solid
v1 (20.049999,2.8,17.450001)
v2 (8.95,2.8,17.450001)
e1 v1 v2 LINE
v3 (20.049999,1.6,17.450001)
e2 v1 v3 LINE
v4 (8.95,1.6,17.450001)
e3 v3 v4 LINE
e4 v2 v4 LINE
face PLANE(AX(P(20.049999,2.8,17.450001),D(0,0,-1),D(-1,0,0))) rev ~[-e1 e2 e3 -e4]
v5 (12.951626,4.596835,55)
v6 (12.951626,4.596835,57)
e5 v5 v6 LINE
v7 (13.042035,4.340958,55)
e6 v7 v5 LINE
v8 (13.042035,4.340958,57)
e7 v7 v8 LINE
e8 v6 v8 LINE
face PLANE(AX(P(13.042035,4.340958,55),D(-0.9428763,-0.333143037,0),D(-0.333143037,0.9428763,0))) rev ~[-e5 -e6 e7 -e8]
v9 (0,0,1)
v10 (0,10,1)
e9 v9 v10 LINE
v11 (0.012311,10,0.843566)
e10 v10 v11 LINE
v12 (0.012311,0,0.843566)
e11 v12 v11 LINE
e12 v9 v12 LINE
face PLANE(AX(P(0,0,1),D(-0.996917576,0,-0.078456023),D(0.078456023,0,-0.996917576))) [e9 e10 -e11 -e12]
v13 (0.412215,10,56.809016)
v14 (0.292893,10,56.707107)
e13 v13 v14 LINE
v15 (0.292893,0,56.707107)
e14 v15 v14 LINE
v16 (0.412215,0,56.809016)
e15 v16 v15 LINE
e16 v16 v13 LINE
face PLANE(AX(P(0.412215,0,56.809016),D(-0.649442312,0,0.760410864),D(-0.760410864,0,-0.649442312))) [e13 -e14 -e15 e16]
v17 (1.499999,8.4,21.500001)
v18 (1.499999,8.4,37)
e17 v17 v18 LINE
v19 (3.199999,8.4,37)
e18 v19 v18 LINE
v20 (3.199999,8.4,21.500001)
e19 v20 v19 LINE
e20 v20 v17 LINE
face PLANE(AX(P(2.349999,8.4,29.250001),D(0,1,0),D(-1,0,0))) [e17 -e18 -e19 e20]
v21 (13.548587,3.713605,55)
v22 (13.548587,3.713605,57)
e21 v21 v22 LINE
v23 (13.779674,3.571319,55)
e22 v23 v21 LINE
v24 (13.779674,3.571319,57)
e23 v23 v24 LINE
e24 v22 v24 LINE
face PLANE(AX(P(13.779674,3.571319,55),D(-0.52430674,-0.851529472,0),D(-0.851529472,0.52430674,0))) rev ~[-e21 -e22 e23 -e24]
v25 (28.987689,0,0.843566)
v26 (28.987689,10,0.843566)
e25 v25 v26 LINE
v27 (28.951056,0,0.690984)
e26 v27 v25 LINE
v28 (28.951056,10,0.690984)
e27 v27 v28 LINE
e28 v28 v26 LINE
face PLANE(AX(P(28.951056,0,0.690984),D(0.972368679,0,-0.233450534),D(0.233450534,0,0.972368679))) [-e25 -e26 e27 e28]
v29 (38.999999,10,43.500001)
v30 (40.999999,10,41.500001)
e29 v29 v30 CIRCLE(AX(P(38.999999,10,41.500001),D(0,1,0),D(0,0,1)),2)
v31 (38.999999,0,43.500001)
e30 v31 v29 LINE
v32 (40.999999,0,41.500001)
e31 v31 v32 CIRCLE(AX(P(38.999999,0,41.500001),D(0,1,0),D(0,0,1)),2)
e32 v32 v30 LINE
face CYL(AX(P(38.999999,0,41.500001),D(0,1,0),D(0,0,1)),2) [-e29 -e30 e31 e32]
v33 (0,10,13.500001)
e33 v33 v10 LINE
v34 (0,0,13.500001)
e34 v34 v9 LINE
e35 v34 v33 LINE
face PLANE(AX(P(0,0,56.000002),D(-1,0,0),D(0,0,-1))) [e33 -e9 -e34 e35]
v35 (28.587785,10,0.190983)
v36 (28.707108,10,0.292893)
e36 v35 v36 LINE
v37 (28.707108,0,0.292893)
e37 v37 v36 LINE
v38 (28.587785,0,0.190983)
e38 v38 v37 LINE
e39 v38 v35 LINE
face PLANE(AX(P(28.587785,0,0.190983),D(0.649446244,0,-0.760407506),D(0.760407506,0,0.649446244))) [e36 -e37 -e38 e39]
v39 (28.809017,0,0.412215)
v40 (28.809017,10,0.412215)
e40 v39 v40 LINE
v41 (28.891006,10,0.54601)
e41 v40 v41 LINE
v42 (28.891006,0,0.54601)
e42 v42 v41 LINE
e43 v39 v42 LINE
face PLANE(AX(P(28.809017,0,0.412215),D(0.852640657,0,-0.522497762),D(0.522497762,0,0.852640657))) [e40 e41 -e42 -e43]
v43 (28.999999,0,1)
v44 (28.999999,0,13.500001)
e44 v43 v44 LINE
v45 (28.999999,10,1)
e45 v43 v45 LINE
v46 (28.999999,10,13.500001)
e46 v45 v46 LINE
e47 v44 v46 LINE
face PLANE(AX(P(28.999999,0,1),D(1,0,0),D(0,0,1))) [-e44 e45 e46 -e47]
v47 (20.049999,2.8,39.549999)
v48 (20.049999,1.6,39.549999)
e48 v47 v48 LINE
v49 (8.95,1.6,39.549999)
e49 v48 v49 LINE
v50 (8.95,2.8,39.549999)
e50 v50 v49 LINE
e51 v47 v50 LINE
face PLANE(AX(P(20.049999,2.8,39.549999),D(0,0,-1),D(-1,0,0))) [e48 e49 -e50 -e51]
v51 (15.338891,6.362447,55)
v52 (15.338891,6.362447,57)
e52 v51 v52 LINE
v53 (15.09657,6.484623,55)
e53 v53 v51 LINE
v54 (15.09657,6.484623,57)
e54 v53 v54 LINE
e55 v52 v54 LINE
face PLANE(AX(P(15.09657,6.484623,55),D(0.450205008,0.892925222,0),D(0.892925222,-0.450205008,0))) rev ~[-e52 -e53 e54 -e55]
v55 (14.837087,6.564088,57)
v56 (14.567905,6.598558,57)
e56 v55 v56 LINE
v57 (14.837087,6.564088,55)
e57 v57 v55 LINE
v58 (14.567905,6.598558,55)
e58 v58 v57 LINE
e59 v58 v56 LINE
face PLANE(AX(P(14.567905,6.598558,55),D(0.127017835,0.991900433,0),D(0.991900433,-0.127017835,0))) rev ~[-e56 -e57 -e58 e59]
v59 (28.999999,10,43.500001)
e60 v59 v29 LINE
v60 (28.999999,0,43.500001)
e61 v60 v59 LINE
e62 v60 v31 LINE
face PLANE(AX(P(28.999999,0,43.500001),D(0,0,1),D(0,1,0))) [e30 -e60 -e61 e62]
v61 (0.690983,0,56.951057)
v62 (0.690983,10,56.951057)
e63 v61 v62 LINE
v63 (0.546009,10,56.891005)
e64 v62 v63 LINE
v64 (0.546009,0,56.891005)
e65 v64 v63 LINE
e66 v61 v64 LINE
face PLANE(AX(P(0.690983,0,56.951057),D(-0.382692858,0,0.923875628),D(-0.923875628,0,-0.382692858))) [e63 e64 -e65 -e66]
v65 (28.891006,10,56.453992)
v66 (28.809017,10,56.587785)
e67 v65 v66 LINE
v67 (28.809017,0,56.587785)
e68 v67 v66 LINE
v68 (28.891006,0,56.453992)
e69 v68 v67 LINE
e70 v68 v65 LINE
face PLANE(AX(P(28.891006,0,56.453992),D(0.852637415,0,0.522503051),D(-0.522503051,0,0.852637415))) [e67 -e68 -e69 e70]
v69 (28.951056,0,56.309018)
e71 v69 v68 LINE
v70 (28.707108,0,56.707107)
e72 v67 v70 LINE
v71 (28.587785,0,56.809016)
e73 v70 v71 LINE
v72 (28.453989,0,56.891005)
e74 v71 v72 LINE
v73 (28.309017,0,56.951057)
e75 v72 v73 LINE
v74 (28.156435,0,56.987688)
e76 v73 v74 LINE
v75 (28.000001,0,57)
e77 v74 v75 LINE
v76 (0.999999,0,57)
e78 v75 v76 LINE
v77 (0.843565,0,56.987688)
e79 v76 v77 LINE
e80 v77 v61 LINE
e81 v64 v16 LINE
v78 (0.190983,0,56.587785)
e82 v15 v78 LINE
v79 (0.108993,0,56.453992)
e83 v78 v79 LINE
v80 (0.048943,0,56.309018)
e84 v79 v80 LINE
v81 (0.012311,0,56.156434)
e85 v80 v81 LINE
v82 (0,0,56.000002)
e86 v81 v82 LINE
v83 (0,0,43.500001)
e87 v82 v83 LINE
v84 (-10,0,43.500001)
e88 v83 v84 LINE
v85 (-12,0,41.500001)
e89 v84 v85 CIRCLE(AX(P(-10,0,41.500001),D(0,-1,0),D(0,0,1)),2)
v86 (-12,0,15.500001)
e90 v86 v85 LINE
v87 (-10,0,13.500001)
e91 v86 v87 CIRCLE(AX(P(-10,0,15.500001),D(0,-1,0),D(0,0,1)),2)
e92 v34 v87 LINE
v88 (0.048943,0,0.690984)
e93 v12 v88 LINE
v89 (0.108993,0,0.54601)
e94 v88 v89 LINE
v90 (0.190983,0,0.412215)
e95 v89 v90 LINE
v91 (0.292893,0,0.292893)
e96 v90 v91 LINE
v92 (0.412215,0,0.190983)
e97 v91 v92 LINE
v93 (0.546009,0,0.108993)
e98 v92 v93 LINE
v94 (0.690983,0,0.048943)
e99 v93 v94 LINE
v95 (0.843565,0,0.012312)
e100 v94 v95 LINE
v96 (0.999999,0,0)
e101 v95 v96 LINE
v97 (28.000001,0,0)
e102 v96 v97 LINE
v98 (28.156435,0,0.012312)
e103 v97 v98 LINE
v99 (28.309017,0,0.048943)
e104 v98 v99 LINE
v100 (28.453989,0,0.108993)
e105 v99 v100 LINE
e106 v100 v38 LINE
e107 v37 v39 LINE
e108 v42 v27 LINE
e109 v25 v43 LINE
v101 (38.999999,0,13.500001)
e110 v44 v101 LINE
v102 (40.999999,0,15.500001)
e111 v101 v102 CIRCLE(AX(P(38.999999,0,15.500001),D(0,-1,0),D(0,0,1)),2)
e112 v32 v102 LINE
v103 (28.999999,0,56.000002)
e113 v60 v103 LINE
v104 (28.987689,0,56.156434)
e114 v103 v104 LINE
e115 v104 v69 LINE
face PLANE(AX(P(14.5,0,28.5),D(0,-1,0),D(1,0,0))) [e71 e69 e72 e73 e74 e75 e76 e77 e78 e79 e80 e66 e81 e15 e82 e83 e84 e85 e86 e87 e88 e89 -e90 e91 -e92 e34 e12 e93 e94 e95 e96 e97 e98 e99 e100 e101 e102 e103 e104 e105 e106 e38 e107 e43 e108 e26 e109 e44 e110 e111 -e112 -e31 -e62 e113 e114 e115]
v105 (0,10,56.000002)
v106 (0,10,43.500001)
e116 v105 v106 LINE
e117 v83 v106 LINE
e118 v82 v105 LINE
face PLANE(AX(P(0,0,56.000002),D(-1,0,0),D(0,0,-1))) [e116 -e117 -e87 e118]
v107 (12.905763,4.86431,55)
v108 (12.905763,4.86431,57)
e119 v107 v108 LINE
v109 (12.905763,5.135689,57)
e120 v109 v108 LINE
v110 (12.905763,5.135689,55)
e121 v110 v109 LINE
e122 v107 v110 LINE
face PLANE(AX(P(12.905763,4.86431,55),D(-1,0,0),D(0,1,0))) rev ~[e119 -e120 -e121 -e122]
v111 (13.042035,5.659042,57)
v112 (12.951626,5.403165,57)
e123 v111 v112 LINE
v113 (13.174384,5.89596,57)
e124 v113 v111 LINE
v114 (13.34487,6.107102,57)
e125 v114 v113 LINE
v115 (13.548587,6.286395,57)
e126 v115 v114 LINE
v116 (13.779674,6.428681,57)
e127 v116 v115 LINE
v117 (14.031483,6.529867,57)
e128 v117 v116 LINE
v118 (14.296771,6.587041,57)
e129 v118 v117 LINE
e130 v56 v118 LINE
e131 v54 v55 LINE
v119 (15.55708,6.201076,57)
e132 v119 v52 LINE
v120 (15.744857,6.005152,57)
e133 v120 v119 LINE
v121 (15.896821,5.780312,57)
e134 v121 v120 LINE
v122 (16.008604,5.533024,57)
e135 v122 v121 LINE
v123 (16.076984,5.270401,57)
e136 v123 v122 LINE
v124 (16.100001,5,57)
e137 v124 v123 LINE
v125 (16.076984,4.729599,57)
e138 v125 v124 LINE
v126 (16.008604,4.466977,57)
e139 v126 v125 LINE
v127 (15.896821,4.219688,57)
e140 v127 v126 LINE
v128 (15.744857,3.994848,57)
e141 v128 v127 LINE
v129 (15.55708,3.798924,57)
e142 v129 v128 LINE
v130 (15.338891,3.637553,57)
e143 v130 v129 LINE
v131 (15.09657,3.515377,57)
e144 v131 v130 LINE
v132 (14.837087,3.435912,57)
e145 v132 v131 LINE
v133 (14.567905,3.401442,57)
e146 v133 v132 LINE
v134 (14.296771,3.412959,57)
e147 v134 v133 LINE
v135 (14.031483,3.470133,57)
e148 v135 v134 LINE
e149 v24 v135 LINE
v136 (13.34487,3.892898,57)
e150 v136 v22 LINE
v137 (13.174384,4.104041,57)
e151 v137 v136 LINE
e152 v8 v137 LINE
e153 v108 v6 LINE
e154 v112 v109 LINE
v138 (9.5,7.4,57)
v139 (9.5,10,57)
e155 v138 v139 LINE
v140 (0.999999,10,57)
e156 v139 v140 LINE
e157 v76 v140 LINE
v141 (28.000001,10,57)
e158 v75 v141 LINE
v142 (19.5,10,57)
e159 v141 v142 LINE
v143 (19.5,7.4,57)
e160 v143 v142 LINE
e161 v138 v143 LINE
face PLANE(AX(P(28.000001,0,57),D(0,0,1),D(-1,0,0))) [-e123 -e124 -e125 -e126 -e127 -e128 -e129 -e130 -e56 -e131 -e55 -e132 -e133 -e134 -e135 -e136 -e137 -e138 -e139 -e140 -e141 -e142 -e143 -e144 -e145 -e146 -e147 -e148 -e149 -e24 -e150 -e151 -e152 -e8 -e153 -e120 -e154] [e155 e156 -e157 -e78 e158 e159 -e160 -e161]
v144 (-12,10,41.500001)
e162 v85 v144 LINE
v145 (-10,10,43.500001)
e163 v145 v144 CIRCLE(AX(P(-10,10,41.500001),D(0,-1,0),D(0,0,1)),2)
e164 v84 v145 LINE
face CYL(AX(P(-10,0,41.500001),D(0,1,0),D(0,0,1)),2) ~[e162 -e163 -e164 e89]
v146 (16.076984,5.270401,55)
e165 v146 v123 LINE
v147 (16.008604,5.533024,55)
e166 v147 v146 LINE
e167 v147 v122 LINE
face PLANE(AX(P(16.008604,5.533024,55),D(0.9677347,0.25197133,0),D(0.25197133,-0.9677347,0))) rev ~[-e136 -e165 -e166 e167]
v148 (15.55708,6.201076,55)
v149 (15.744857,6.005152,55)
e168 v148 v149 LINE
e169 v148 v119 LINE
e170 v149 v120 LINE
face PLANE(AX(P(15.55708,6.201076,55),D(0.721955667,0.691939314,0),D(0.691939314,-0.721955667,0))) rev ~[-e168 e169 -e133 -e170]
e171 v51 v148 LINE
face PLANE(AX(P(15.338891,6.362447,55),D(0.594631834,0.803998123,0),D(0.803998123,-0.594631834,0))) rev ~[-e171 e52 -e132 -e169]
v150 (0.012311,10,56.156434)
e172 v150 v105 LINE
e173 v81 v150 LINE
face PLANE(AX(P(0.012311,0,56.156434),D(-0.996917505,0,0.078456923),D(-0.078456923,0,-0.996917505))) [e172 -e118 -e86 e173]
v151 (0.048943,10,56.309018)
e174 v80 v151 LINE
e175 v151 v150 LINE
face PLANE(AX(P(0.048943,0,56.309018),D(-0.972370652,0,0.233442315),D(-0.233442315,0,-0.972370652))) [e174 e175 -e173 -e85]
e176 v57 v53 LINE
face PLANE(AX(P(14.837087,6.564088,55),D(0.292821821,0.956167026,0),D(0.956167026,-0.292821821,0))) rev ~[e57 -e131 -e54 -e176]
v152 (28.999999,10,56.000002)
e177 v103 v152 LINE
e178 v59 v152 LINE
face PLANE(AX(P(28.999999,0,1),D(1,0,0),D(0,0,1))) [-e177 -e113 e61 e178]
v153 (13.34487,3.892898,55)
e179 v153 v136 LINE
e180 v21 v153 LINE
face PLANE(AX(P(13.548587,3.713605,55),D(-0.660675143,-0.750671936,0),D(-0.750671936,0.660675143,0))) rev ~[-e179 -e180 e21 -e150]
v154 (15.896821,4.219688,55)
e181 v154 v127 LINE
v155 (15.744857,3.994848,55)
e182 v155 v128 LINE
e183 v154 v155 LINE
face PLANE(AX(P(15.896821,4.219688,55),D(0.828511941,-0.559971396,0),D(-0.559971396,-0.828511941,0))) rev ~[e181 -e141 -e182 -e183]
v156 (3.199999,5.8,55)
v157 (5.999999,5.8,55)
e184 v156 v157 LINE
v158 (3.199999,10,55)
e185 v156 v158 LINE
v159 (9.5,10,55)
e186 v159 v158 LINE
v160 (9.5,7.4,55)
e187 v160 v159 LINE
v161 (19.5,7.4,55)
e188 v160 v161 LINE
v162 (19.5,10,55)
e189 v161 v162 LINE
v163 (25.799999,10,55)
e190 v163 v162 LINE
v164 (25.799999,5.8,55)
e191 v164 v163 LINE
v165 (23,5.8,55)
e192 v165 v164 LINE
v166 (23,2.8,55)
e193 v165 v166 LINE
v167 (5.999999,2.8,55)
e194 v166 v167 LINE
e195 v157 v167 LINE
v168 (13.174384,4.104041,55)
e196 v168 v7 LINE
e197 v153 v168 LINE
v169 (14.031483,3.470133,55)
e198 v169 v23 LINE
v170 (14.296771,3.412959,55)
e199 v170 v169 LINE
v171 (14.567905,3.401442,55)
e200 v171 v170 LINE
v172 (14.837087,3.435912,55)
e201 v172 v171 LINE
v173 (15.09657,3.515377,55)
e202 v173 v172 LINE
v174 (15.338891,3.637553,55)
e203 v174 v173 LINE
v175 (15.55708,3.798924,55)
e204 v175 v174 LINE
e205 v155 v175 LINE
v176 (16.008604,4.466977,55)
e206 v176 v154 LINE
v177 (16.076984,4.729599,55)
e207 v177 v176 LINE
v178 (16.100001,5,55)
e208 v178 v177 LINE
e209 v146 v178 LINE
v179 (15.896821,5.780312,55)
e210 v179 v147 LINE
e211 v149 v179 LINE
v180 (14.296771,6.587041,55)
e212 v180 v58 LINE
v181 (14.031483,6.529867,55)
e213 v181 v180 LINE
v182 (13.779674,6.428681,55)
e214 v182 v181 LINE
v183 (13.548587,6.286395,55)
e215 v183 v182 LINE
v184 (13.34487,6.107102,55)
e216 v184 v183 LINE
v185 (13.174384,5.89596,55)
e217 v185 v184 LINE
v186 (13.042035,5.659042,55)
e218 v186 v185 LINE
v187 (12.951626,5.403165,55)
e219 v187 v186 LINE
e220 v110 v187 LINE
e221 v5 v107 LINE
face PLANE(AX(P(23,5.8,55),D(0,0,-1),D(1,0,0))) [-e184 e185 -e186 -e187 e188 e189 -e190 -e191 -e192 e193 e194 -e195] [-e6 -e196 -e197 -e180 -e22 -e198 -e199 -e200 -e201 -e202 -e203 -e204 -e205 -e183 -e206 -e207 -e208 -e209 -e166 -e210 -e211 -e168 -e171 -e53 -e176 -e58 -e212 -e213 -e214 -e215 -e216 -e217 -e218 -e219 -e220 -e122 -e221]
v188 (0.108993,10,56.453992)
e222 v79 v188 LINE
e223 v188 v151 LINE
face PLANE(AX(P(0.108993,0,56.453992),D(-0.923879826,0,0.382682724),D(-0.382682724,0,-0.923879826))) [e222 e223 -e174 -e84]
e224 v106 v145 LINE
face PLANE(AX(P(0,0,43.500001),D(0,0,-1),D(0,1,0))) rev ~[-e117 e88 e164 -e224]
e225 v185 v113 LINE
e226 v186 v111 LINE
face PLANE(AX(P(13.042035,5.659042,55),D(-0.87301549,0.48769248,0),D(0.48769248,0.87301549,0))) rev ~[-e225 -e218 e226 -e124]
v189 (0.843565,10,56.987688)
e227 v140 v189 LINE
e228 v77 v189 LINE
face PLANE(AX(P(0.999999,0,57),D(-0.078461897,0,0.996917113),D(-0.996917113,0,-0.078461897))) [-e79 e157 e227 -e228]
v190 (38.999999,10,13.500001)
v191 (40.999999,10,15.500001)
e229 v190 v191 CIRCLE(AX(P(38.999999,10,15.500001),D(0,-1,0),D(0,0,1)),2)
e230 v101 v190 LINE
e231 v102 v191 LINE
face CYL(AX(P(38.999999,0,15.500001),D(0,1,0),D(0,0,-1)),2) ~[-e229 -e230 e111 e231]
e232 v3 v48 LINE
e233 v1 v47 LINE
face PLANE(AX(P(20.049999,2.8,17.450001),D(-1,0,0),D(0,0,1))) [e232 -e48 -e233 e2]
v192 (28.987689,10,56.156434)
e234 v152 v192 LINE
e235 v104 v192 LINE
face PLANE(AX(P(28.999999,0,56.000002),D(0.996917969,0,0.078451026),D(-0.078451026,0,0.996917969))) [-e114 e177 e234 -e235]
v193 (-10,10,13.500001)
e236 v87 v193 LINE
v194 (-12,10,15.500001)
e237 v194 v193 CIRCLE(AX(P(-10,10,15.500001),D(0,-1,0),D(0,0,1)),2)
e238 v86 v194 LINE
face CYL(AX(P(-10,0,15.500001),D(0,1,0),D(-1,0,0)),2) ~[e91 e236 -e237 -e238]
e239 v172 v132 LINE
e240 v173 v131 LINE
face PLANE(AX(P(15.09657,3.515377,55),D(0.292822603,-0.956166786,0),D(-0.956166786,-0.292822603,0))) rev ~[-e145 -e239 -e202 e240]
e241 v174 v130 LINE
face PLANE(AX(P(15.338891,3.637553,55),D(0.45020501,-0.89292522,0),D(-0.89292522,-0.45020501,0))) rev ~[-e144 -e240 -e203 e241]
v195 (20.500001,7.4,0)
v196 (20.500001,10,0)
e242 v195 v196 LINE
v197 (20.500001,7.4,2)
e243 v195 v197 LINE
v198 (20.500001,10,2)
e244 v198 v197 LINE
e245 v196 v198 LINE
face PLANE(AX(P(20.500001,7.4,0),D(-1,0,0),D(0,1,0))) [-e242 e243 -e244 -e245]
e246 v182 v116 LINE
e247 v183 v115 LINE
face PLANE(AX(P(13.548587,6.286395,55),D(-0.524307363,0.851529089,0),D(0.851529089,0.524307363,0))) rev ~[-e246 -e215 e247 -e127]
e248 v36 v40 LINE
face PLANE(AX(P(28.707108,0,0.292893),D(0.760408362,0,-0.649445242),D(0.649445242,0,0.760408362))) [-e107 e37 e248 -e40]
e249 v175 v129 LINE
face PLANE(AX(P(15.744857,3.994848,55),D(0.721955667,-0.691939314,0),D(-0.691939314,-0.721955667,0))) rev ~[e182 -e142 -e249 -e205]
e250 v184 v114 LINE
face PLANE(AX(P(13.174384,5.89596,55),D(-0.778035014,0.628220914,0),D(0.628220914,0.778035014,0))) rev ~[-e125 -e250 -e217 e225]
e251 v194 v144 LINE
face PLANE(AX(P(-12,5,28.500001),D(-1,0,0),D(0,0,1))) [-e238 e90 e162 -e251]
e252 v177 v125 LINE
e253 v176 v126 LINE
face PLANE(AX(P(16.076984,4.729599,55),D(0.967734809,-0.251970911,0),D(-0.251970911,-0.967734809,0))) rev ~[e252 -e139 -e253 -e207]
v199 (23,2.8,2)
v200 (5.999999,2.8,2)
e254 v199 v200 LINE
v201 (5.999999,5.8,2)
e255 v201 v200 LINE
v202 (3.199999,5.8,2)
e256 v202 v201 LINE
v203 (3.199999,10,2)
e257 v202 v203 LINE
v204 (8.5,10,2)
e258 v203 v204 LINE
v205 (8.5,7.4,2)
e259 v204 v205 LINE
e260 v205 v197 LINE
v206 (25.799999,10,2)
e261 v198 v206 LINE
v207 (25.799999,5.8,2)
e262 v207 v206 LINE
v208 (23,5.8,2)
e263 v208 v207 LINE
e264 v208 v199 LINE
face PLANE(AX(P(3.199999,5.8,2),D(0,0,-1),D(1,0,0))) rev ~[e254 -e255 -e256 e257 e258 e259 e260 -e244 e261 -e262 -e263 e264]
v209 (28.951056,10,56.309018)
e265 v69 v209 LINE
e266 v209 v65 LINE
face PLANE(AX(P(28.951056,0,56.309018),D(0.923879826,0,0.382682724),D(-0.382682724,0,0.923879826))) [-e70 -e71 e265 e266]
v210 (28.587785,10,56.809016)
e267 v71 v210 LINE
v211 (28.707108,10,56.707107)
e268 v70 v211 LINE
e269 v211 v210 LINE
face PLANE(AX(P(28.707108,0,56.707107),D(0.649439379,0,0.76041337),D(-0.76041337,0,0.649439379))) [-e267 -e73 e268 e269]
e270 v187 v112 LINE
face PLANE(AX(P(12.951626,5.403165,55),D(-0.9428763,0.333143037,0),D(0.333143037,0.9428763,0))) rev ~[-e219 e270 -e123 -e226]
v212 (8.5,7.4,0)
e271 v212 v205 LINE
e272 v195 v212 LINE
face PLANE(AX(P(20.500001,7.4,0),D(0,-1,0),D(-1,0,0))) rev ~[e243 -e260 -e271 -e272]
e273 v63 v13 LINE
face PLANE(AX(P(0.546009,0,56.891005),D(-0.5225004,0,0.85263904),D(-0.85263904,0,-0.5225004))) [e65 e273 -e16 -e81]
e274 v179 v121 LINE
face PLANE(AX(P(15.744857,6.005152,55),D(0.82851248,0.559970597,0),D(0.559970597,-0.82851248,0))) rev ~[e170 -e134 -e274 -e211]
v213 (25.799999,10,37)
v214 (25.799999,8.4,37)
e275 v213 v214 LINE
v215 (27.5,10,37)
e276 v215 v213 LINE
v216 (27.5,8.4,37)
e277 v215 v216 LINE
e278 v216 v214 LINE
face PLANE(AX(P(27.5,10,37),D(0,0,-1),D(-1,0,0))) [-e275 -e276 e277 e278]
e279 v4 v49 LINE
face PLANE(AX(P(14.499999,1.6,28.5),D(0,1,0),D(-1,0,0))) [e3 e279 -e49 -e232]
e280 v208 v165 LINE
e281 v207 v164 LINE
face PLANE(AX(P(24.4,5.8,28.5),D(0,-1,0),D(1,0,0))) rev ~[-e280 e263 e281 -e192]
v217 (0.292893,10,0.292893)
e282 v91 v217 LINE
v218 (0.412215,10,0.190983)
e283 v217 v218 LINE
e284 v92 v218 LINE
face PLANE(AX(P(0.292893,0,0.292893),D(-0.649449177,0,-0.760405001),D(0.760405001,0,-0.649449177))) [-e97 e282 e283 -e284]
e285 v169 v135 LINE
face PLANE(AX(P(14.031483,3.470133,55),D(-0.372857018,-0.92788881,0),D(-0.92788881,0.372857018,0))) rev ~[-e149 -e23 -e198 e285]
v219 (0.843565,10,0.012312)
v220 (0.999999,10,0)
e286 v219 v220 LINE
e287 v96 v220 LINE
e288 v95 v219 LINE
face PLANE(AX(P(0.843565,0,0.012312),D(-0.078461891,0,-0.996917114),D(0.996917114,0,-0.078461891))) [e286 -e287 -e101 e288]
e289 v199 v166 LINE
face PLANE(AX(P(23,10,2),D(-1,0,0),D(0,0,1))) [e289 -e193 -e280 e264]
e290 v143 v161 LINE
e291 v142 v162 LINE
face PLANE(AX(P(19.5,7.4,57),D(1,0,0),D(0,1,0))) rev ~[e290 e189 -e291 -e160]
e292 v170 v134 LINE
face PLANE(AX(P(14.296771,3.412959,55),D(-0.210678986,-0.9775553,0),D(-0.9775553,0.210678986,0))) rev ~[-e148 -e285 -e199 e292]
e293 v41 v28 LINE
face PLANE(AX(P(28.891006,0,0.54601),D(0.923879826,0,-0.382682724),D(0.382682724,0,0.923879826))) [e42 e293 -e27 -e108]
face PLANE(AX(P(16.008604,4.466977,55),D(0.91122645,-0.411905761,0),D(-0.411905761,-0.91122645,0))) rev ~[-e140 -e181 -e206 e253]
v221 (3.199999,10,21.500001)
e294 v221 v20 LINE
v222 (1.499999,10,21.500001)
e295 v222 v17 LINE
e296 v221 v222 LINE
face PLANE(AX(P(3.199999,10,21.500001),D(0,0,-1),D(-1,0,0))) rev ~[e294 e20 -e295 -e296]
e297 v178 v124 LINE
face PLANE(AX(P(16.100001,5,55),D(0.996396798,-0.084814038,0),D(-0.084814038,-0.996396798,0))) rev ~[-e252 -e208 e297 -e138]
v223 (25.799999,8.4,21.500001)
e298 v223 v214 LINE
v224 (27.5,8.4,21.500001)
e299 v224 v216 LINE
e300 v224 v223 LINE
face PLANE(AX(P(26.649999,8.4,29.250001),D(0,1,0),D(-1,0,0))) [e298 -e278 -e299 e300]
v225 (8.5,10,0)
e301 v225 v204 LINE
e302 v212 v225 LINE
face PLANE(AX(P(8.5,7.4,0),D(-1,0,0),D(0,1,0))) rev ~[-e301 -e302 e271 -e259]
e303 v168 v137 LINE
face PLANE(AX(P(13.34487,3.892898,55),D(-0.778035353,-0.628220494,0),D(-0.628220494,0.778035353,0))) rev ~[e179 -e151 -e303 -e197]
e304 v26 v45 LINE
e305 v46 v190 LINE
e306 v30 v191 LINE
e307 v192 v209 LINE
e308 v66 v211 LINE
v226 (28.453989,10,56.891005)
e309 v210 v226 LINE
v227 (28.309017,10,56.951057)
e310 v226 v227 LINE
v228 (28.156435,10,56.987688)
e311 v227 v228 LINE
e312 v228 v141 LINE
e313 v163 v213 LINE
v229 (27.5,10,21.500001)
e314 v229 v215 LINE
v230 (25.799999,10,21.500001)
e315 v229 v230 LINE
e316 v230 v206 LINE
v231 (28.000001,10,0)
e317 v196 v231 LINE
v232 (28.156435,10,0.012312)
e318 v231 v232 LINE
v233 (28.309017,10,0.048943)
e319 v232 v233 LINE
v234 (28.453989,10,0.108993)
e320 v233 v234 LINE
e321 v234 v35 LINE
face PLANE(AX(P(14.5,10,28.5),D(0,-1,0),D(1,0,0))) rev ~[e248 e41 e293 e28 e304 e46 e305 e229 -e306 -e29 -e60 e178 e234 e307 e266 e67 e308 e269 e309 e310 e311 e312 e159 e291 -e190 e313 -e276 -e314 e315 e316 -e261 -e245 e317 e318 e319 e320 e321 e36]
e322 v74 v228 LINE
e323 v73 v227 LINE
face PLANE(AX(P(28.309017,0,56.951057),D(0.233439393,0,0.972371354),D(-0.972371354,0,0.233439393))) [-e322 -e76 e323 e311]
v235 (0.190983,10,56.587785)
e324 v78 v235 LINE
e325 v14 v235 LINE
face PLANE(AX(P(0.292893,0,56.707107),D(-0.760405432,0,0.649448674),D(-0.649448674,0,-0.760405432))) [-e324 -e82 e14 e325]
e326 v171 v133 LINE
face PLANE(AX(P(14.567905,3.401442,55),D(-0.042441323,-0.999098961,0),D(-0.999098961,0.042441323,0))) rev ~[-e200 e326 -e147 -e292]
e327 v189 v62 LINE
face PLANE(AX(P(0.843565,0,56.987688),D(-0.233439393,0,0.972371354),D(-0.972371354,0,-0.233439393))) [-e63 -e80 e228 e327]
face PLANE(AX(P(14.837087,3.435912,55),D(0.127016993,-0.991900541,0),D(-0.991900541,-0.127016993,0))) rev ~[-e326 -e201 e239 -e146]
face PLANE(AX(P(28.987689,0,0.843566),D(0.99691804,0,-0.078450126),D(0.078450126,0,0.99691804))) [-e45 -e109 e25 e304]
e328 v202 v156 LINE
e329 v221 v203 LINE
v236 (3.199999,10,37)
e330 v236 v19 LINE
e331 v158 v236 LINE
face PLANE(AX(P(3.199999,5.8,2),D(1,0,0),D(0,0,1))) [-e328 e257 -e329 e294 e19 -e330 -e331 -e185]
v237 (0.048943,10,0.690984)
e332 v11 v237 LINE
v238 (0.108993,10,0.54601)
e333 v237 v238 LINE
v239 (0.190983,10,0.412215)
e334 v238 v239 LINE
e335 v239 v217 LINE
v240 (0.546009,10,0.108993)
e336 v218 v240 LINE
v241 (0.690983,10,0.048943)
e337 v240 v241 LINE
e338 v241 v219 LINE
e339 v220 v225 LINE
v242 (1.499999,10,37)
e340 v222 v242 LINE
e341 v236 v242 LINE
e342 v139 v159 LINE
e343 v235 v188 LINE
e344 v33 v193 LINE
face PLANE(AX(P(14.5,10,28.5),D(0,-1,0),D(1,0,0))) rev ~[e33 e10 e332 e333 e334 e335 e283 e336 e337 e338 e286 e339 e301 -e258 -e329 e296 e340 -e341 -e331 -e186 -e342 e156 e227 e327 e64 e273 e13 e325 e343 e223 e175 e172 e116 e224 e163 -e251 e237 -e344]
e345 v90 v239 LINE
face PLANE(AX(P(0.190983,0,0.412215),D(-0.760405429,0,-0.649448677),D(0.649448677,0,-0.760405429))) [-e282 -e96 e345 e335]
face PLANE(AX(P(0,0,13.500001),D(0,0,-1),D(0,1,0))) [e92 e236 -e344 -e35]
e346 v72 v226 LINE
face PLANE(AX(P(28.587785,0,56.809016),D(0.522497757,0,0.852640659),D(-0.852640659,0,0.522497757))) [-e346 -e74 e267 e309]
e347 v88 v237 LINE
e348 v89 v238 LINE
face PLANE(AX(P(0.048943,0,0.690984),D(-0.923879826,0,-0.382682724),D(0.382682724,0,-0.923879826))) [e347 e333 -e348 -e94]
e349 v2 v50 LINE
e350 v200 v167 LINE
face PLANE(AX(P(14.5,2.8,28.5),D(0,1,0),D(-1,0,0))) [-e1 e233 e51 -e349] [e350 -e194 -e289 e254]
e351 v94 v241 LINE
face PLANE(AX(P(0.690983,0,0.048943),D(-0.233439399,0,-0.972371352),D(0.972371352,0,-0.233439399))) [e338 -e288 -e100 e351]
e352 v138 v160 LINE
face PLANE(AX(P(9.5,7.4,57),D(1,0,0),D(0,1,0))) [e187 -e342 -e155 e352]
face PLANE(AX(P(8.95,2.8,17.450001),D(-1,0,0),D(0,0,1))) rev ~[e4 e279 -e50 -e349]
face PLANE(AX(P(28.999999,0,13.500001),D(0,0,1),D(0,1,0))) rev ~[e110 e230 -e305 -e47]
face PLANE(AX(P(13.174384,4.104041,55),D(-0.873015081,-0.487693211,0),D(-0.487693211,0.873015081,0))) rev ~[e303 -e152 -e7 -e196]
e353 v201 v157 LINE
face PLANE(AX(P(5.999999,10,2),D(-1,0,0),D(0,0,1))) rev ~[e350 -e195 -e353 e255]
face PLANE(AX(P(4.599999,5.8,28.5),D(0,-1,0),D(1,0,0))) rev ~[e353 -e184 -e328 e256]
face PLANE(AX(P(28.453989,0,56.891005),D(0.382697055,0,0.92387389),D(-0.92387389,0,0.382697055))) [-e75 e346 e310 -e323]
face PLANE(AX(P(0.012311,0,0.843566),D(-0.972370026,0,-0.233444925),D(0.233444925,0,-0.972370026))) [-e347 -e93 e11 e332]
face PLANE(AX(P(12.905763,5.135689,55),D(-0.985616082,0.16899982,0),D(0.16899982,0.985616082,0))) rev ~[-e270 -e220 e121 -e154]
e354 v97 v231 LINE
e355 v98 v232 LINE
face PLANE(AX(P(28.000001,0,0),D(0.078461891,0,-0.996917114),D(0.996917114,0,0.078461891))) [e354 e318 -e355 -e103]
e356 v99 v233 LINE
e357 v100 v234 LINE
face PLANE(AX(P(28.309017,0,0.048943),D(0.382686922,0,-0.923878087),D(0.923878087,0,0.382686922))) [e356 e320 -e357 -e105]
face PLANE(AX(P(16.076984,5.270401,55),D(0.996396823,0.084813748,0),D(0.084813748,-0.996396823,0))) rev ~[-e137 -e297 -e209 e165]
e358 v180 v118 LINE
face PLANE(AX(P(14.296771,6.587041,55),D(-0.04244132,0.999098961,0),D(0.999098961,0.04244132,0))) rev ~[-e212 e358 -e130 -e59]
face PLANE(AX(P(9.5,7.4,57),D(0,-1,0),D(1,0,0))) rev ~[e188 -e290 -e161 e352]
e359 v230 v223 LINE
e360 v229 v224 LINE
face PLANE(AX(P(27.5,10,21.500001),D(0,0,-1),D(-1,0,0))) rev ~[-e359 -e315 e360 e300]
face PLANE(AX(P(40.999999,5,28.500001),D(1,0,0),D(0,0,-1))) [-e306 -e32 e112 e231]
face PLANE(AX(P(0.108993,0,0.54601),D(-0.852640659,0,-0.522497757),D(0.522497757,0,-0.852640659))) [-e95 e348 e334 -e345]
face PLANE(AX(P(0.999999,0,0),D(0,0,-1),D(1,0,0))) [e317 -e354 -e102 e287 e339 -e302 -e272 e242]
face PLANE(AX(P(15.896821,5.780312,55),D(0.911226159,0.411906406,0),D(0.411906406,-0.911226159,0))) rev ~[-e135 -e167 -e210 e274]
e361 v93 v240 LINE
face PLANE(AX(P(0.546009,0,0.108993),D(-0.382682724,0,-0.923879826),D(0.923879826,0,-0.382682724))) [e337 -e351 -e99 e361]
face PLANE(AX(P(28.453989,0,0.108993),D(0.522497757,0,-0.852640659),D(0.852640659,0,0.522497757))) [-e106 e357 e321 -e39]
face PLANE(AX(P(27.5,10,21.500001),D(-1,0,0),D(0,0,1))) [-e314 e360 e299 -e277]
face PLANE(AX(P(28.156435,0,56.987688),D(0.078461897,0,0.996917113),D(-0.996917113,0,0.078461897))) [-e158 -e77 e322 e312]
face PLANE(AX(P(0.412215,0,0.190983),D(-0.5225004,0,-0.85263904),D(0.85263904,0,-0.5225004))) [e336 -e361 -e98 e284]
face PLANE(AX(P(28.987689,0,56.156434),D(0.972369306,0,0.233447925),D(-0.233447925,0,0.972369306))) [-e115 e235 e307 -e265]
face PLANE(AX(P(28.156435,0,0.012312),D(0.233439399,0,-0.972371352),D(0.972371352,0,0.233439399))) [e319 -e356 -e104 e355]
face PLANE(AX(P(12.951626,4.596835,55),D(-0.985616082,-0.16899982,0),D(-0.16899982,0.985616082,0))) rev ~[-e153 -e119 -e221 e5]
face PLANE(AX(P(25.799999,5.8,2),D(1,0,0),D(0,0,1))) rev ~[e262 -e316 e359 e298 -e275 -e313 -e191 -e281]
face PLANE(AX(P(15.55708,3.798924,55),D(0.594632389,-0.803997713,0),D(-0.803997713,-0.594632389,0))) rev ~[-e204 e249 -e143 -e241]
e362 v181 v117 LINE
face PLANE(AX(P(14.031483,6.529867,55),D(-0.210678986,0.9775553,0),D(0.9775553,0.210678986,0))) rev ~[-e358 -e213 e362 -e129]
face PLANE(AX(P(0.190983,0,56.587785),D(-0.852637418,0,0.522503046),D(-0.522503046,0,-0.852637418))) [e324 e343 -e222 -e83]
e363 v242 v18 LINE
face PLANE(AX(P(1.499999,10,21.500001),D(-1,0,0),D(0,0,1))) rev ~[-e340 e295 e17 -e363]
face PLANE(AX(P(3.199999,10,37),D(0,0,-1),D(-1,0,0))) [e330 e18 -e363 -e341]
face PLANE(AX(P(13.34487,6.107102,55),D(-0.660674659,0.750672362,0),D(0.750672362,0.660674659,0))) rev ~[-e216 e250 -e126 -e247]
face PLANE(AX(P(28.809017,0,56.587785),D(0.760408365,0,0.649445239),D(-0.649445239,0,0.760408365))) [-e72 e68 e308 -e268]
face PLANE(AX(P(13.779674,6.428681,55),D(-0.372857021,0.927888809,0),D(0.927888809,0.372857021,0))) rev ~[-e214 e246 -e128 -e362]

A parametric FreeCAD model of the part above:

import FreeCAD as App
import Part
import Sketcher
Q = App.Units.Quantity


def edges_at(feature, points):
    """Names of the edges that pass closest to the given points."""
    edges = feature.Shape.Edges
    near = lambda p: min(range(len(edges)), key=lambda i: edges[i].distToShape(Part.Vertex(*p))[0])
    return sorted({f"Edge{near(p) + 1}" for p in points})


def add_polygon(sketch, points):
    """Adds a closed chain of lines whose ends are joined by coincident constraints."""
    first, n = sketch.GeometryCount, len(points)
    for a, b in zip(points, points[1:] + points[:1]):
        sketch.addGeometry(Part.LineSegment(App.Vector(*a, 0), App.Vector(*b, 0)), False)
    for i in range(n):
        sketch.addConstraint(Sketcher.Constraint("Coincident", first + i, 2, first + (i + 1) % n, 1))

doc = App.newDocument("Part")
body = doc.addObject("PartDesign::Body", "Body")

sketch1 = body.newObject("Sketcher::SketchObject", "Sketch")
sketch1.AttachmentSupport = (doc.getObject("XZ_Plane"), [""])
sketch1.MapMode = "FlatFace"
add_polygon(sketch1, [(0.84, 0.01), (1, 0), (28, 0), (28.16, 0.01), (28.31, 0.05), (28.45, 0.11), (28.59, 0.19), (28.71, 0.29), (28.81, 0.41), (28.89, 0.55), (28.95, 0.69), (28.99, 0.84), (29, 1), (29, 56), (28.99, 56.16), (28.95, 56.31), (28.89, 56.45), (28.81, 56.59), (28.71, 56.71), (28.59, 56.81), (28.45, 56.89), (28.31, 56.95), (28.16, 56.99), (28, 57), (1, 57), (0.84, 56.99), (0.69, 56.95), (0.55, 56.89), (0.41, 56.81), (0.29, 56.71), (0.19, 56.59), (0.11, 56.45), (0.05, 56.31), (0.01, 56.16), (0, 56), (0, 1), (0.01, 0.84), (0.05, 0.69), (0.11, 0.55), (0.19, 0.41), (0.29, 0.29), (0.41, 0.19), (0.55, 0.11), (0.69, 0.05)])
sketch1.addConstraint([
    Sketcher.Constraint("Horizontal", 1),
    Sketcher.Constraint("Vertical", 12),
    Sketcher.Constraint("Horizontal", 23),
    Sketcher.Constraint("Vertical", 34),
    Sketcher.Constraint("PointOnObject", 0, 2, -1),
    Sketcher.Constraint("PointOnObject", 33, 2, -2),
    Sketcher.Constraint("Perpendicular", 6, 17),
    Sketcher.Constraint("Perpendicular", 8, 19),
    Sketcher.Constraint("Parallel", 0, 22),
    Sketcher.Constraint("Parallel", 2, 24),
    Sketcher.Constraint("Parallel", 3, 25),
    Sketcher.Constraint("Parallel", 9, 31),
    Sketcher.Constraint("Parallel", 15, 37),
    Sketcher.Constraint("Perpendicular", 5, 38),
    Sketcher.Constraint("Perpendicular", 29, 40),
    Sketcher.Constraint("Perpendicular", 31, 42),
    Sketcher.Constraint("Parallel", 21, 43),
    Sketcher.Constraint("Horizontal", 21, 2, 24, 2),
    Sketcher.Constraint("Horizontal", 20, 2, 25, 2),
    Sketcher.Constraint("Horizontal", 19, 2, 26, 2),
    Sketcher.Constraint("Horizontal", 18, 2, 27, 2),
    Sketcher.Constraint("Horizontal", 17, 2, 28, 2),
    Sketcher.Constraint("Horizontal", 16, 2, 29, 2),
    Sketcher.Constraint("Horizontal", 15, 2, 30, 2),
    Sketcher.Constraint("Horizontal", 14, 2, 31, 2),
    Sketcher.Constraint("Horizontal", 13, 2, 32, 2),
    Sketcher.Constraint("Horizontal", 12, 2, 33, 2),
    Sketcher.Constraint("Horizontal", 11, 2, 34, 2),
    Sketcher.Constraint("Horizontal", 10, 2, 35, 2),
    Sketcher.Constraint("Horizontal", 9, 2, 36, 2),
    Sketcher.Constraint("Horizontal", 8, 2, 37, 2),
    Sketcher.Constraint("Horizontal", 7, 2, 38, 2),
    Sketcher.Constraint("Horizontal", 6, 2, 39, 2),
    Sketcher.Constraint("Horizontal", 5, 2, 40, 2),
    Sketcher.Constraint("Horizontal", 4, 2, 41, 2),
    Sketcher.Constraint("Horizontal", 3, 2, 42, 2),
    Sketcher.Constraint("Horizontal", 2, 2, 43, 2),
    Sketcher.Constraint("Vertical", 10, 2, 13, 2),
    Sketcher.Constraint("Vertical", 9, 2, 14, 2),
    Sketcher.Constraint("Vertical", 8, 2, 15, 2),
    Sketcher.Constraint("Vertical", 7, 2, 16, 2),
    Sketcher.Constraint("Vertical", 6, 2, 17, 2),
    Sketcher.Constraint("Vertical", 5, 2, 18, 2),
    Sketcher.Constraint("Vertical", 4, 2, 19, 2),
    Sketcher.Constraint("Vertical", 3, 2, 20, 2),
    Sketcher.Constraint("Vertical", 2, 2, 21, 2),
    Sketcher.Constraint("Vertical", 1, 2, 22, 2),
    Sketcher.Constraint("Vertical", 0, 2, 23, 2),
    Sketcher.Constraint("Vertical", 32, 2, 35, 2),
    Sketcher.Constraint("Vertical", 31, 2, 36, 2),
    Sketcher.Constraint("Vertical", 30, 2, 37, 2),
    Sketcher.Constraint("Vertical", 29, 2, 38, 2),
    Sketcher.Constraint("Vertical", 28, 2, 39, 2),
    Sketcher.Constraint("Vertical", 27, 2, 40, 2),
    Sketcher.Constraint("Vertical", 26, 2, 41, 2),
    Sketcher.Constraint("Vertical", 25, 2, 42, 2),
    Sketcher.Constraint("Vertical", 24, 2, 43, 2),
    Sketcher.Constraint("Equal", 2, 3),
    Sketcher.Constraint("Equal", 3, 4),
    Sketcher.Constraint("Equal", 3, 5),
    Sketcher.Constraint("Equal", 5, 6),
    Sketcher.Constraint("Equal", 4, 7),
    Sketcher.Constraint("Equal", 6, 8),
    Sketcher.Constraint("Equal", 8, 9),
    Sketcher.Constraint("Equal", 9, 10),
    Sketcher.Constraint("Equal", 10, 11),
    Sketcher.Constraint("Equal", 11, 13),
    Sketcher.Constraint("Equal", 10, 14),
    Sketcher.Constraint("Equal", 15, 16),
    Sketcher.Constraint("Equal", 16, 17),
    Sketcher.Constraint("Equal", 17, 18),
    Sketcher.Constraint("Equal", 18, 19),
    Sketcher.Constraint("Equal", 18, 20),
    Sketcher.Constraint("Equal", 25, 26),
    Sketcher.Constraint("Equal", 26, 27),
    Sketcher.Constraint("Equal", 27, 28),
    Sketcher.Constraint("Equal", 31, 32),
    Sketcher.Constraint("Equal", 31, 33),
    Sketcher.Constraint("DistanceX", 1, 1, 1, 2, Q("27.000002 mm")),
    Sketcher.Constraint("DistanceY", 12, 1, 12, 2, Q("55.000002 mm")),
    Sketcher.Constraint("DistanceX", -1, 1, 0, 2, Q("0.999999 mm")),
    Sketcher.Constraint("DistanceY", -1, 1, 11, 2, Q("1 mm")),
    Sketcher.Constraint("DistanceX", 3, 2, 7, 2, Q("0.499999 mm")),
    Sketcher.Constraint("DistanceY", 4, 2, 6, 2, Q("0.183901 mm")),
    Sketcher.Constraint("Distance", 0, Q("0.156918 mm")),
    Sketcher.Constraint("DistanceX", -1, 1, 4, 2, Q("28.453989 mm")),
    Sketcher.Constraint("DistanceY", -1, 1, 8, 2, Q("0.54601 mm")),
    Sketcher.Constraint("DistanceX", -1, 1, 10, 2, Q("28.987689 mm")),
])
pad1 = body.newObject("PartDesign::Pad", "Pad")
pad1.Profile = sketch1
pad1.Length = 10
pad1.Reversed = True

sketch2 = body.newObject("Sketcher::SketchObject", "Sketch001")
sketch2.AttachmentSupport = (doc.getObject("XZ_Plane"), [""])
sketch2.MapMode = "FlatFace"
sketch2.AttachmentOffset = App.Placement(App.Vector(0, 0, -10), App.Rotation())
add_polygon(sketch2, [(23, 55), (23, 2), (6, 2), (6, 55)])
sketch2.addConstraint([
    Sketcher.Constraint("Vertical", 0),
    Sketcher.Constraint("Horizontal", 1),
    Sketcher.Constraint("Vertical", 2),
    Sketcher.Constraint("Horizontal", 3),
    Sketcher.Constraint("DistanceX", 1, 2, 1, 1, Q("17.000001 mm")),
    Sketcher.Constraint("DistanceY", 0, 2, 0, 1, Q("52.999999 mm")),
    Sketcher.Constraint("DistanceX", -1, 1, 0, 2, Q("23 mm")),
    Sketcher.Constraint("DistanceY", -1, 1, 0, 2, Q("2 mm")),
])
pocket1 = body.newObject("PartDesign::Pocket", "Pocket")
pocket1.Profile = sketch2
pocket1.Length = 7.2
pocket1.Reversed = True

sketch3 = body.newObject("Sketcher::SketchObject", "Sketch002")
sketch3.AttachmentSupport = (doc.getObject("XZ_Plane"), [""])
sketch3.MapMode = "FlatFace"
sketch3.AttachmentOffset = App.Placement(App.Vector(0, 0, -5.8), App.Rotation())
add_polygon(sketch3, [(23, 55), (23, 2), (25.8, 2), (25.8, 55)])
sketch3.addConstraint([
    Sketcher.Constraint("Vertical", 0),
    Sketcher.Constraint("Horizontal", 1),
    Sketcher.Constraint("Vertical", 2),
    Sketcher.Constraint("Horizontal", 3),
    Sketcher.Constraint("DistanceY", 0, 2, 0, 1, Q("52.999999 mm")),
    Sketcher.Constraint("DistanceX", 1, 1, 1, 2, Q("2.799999 mm")),
    Sketcher.Constraint("DistanceX", -1, 1, 0, 2, Q("23 mm")),
    Sketcher.Constraint("DistanceY", -1, 1, 0, 2, Q("2 mm")),
])
pocket2 = body.newObject("PartDesign::Pocket", "Pocket001")
pocket2.Profile = sketch3
pocket2.Type = "UpToFirst"

sketch4 = body.newObject("Sketcher::SketchObject", "Sketch003")
sketch4.AttachmentSupport = (doc.getObject("XZ_Plane"), [""])
sketch4.MapMode = "FlatFace"
sketch4.AttachmentOffset = App.Placement(App.Vector(0, 0, -5.8), App.Rotation())
add_polygon(sketch4, [(3.2, 55), (3.2, 2), (6, 2), (6, 55)])
sketch4.addConstraint([
    Sketcher.Constraint("Vertical", 0),
    Sketcher.Constraint("Horizontal", 1),
    Sketcher.Constraint("Vertical", 2),
    Sketcher.Constraint("Horizontal", 3),
    Sketcher.Constraint("DistanceY", 0, 2, 0, 1, Q("52.999999 mm")),
    Sketcher.Constraint("DistanceX", 1, 1, 1, 2, Q("2.8 mm")),
    Sketcher.Constraint("DistanceY", -1, 1, 0, 2, Q("2 mm")),
    Sketcher.Constraint("DistanceX", -1, 1, 1, 2, Q("5.999999 mm")),
])
pocket3 = body.newObject("PartDesign::Pocket", "Pocket002")
pocket3.Profile = sketch4
pocket3.Type = "UpToFirst"

sketch5 = body.newObject("Sketcher::SketchObject", "Sketch004")
sketch5.AttachmentSupport = (doc.getObject("XY_Plane"), [""])
sketch5.MapMode = "FlatFace"
sketch5.AttachmentOffset = App.Placement(App.Vector(0, 0, 57), App.Rotation())
add_polygon(sketch5, [(9.5, 10), (9.5, 7.4), (19.5, 7.4), (19.5, 10)])
sketch5.addConstraint([
    Sketcher.Constraint("Vertical", 0),
    Sketcher.Constraint("Horizontal", 1),
    Sketcher.Constraint("Vertical", 2),
    Sketcher.Constraint("Horizontal", 3),
    Sketcher.Constraint("DistanceX", 1, 1, 1, 2, Q("10.000001 mm")),
    Sketcher.Constraint("DistanceY", 0, 2, 0, 1, Q("2.6 mm")),
    Sketcher.Constraint("DistanceY", -1, 1, 2, 2, Q("10 mm")),
    Sketcher.Constraint("DistanceX", -1, 1, 0, 2, Q("9.5 mm")),
])
pocket4 = body.newObject("PartDesign::Pocket", "Pocket003")
pocket4.Profile = sketch5
pocket4.Type = "UpToFirst"

sketch6 = body.newObject("Sketcher::SketchObject", "Sketch005")
sketch6.AttachmentSupport = (doc.getObject("XY_Plane"), [""])
sketch6.MapMode = "FlatFace"
add_polygon(sketch6, [(20.5, 10), (20.5, 7.4), (8.5, 7.4), (8.5, 10)])
sketch6.addConstraint([
    Sketcher.Constraint("Vertical", 0),
    Sketcher.Constraint("Horizontal", 1),
    Sketcher.Constraint("Vertical", 2),
    Sketcher.Constraint("Horizontal", 3),
    Sketcher.Constraint("DistanceX", 1, 2, 1, 1, Q("12 mm")),
    Sketcher.Constraint("DistanceY", 0, 2, 0, 1, Q("2.6 mm")),
    Sketcher.Constraint("DistanceY", -1, 1, 2, 2, Q("10 mm")),
    Sketcher.Constraint("DistanceX", -1, 1, 0, 2, Q("20.500001 mm")),
])
pocket5 = body.newObject("PartDesign::Pocket", "Pocket004")
pocket5.Profile = sketch6
pocket5.Type = "UpToFirst"
pocket5.Reversed = True

sketch7 = body.newObject("Sketcher::SketchObject", "Sketch006")
sketch7.AttachmentSupport = (doc.getObject("XY_Plane"), [""])
sketch7.MapMode = "FlatFace"
sketch7.AttachmentOffset = App.Placement(App.Vector(0, 0, 55), App.Rotation())
add_polygon(sketch7, [(16.008604, 4.466977), (15.896821, 4.219688), (15.744857, 3.994848), (15.55708, 3.798924), (15.338891, 3.637553), (15.09657, 3.515377), (14.837087, 3.435912), (14.567905, 3.401442), (14.296771, 3.412959), (14.031483, 3.470133), (13.779674, 3.571319), (13.548587, 3.713605), (13.34487, 3.892898), (13.174384, 4.104041), (13.042035, 4.340958), (12.951626, 4.596835), (12.905763, 4.86431), (12.905763, 5.135689), (12.951626, 5.403165), (13.042035, 5.659042), (13.174384, 5.89596), (13.34487, 6.107102), (13.548587, 6.286395), (13.779674, 6.428681), (14.031483, 6.529867), (14.296771, 6.587041), (14.567905, 6.598558), (14.837087, 6.564088), (15.09657, 6.484623), (15.338891, 6.362447), (15.55708, 6.201076), (15.744857, 6.005152), (15.896821, 5.780312), (16.008604, 5.533024), (16.076984, 5.270401), (16.100001, 5), (16.076984, 4.729599)])
sketch7.addConstraint([
    Sketcher.Constraint("Vertical", 16),
    Sketcher.Constraint("DistanceY", -1, 1, 34, 2, Q("5 mm")),
    Sketcher.Constraint("DistanceX", -1, 1, 34, 2, Q("16.100001 mm")),
    Sketcher.Constraint("DistanceY", 16, 1, 16, 2, Q("0.271379 mm")),
    Sketcher.Constraint("DistanceY", -1, 1, 33, 2, Q("5.270401 mm")),
    Sketcher.Constraint("DistanceY", -1, 1, 35, 2, Q("4.729599 mm")),
    Sketcher.Constraint("DistanceX", 7, 2, 4, 2, Q("0.799799 mm")),
    Sketcher.Constraint("DistanceX", 10, 2, 5, 2, Q("1.288501 mm")),
    Sketcher.Constraint("DistanceX", 11, 2, 7, 2, Q("0.951901 mm")),
    Sketcher.Constraint("DistanceX", 12, 2, 8, 2, Q("0.857099 mm")),
    Sketcher.Constraint("DistanceX", 19, 2, 23, 2, Q("0.857099 mm")),
    Sketcher.Constraint("DistanceX", 20, 2, 24, 2, Q("0.951901 mm")),
    Sketcher.Constraint("DistanceX", 21, 2, 26, 2, Q("1.288501 mm")),
    Sketcher.Constraint("DistanceX", 24, 2, 27, 2, Q("0.799799 mm")),
    Sketcher.Constraint("Distance", 0, Q("0.27138 mm")),
    Sketcher.Constraint("Distance", 2, Q("0.271379 mm")),
    Sketcher.Constraint("Distance", 3, Q("0.271379 mm")),
    Sketcher.Constraint("Distance", 4, Q("0.271379 mm")),
    Sketcher.Constraint("Distance", 5, Q("0.271379 mm")),
    Sketcher.Constraint("Distance", 6, Q("0.27138 mm")),
    Sketcher.Constraint("Distance", 7, Q("0.271379 mm")),
    Sketcher.Constraint("Distance", 8, Q("0.271379 mm")),
    Sketcher.Constraint("Distance", 9, Q("0.271379 mm")),
    Sketcher.Constraint("Distance", 10, Q("0.271379 mm")),
    Sketcher.Constraint("Distance", 11, Q("0.271379 mm")),
    Sketcher.Constraint("Distance", 12, Q("0.271379 mm")),
    Sketcher.Constraint("Distance", 13, Q("0.271378 mm")),
    Sketcher.Constraint("Distance", 14, Q("0.271379 mm")),
    Sketcher.Constraint("Distance", 15, Q("0.271379 mm")),
    Sketcher.Constraint("Distance", 17, Q("0.271379 mm")),
    Sketcher.Constraint("Distance", 18, Q("0.271379 mm")),
    Sketcher.Constraint("Distance", 19, Q("0.271379 mm")),
    Sketcher.Constraint("Distance", 20, Q("0.271379 mm")),
    Sketcher.Constraint("Distance", 21, Q("0.271379 mm")),
    Sketcher.Constraint("Distance", 22, Q("0.271379 mm")),
    Sketcher.Constraint("Distance", 23, Q("0.271379 mm")),
    Sketcher.Constraint("Distance", 24, Q("0.271379 mm")),
    Sketcher.Constraint("Distance", 25, Q("0.271379 mm")),
    Sketcher.Constraint("Distance", 26, Q("0.27138 mm")),
    Sketcher.Constraint("Distance", 27, Q("0.271379 mm")),
    Sketcher.Constraint("Distance", 28, Q("0.271379 mm")),
    Sketcher.Constraint("Distance", 29, Q("0.271379 mm")),
    Sketcher.Constraint("Distance", 30, Q("0.271379 mm")),
    Sketcher.Constraint("Distance", 31, Q("0.271378 mm")),
    Sketcher.Constraint("Distance", 32, Q("0.271379 mm")),
    Sketcher.Constraint("Distance", 33, Q("0.271378 mm")),
    Sketcher.Constraint("Distance", 34, Q("0.271379 mm")),
    Sketcher.Constraint("Distance", 35, Q("0.271378 mm")),
    Sketcher.Constraint("Distance", 36, Q("0.271379 mm")),
    Sketcher.Constraint("DistanceX", -1, 1, 0, 2, Q("15.896821 mm")),
    Sketcher.Constraint("DistanceY", -1, 1, 0, 2, Q("4.219688 mm")),
    Sketcher.Constraint("DistanceY", -1, 1, 1, 2, Q("3.994848 mm")),
    Sketcher.Constraint("DistanceX", -1, 1, 2, 2, Q("15.55708 mm")),
    Sketcher.Constraint("DistanceX", -1, 1, 3, 2, Q("15.338891 mm")),
    Sketcher.Constraint("DistanceX", -1, 1, 4, 2, Q("15.09657 mm")),
    Sketcher.Constraint("DistanceY", -1, 1, 5, 2, Q("3.435912 mm")),
    Sketcher.Constraint("DistanceY", -1, 1, 6, 2, Q("3.401442 mm")),
    Sketcher.Constraint("DistanceY", -1, 1, 7, 2, Q("3.412959 mm")),
    Sketcher.Constraint("DistanceY", -1, 1, 9, 2, Q("3.571319 mm")),
    Sketcher.Constraint("DistanceY", -1, 1, 12, 2, Q("4.104041 mm")),
    Sketcher.Constraint("DistanceY", -1, 1, 15, 2, Q("4.86431 mm")),
    Sketcher.Constraint("DistanceY", -1, 1, 18, 2, Q("5.659042 mm")),
    Sketcher.Constraint("DistanceY", -1, 1, 19, 2, Q("5.89596 mm")),
    Sketcher.Constraint("DistanceX", -1, 1, 20, 2, Q("13.34487 mm")),
    Sketcher.Constraint("DistanceY", -1, 1, 22, 2, Q("6.428681 mm")),
    Sketcher.Constraint("DistanceY", -1, 1, 24, 2, Q("6.587041 mm")),
    Sketcher.Constraint("DistanceY", -1, 1, 25, 2, Q("6.598558 mm")),
    Sketcher.Constraint("DistanceY", -1, 1, 26, 2, Q("6.564088 mm")),
    Sketcher.Constraint("DistanceX", -1, 1, 28, 2, Q("15.338891 mm")),
    Sketcher.Constraint("DistanceX", -1, 1, 29, 2, Q("15.55708 mm")),
    Sketcher.Constraint("DistanceX", -1, 1, 31, 2, Q("15.896821 mm")),
    Sketcher.Constraint("DistanceY", -1, 1, 31, 2, Q("5.780312 mm")),
    Sketcher.Constraint("DistanceX", 13, 2, 12, 2, Q("0.132349 mm")),
    Sketcher.Constraint("DistanceX", 14, 2, 13, 2, Q("0.090408 mm")),
])
pocket6 = body.newObject("PartDesign::Pocket", "Pocket005")
pocket6.Profile = sketch7
pocket6.Type = "ThroughAll"
pocket6.Reversed = True

sketch8 = body.newObject("Sketcher::SketchObject", "Sketch007")
sketch8.AttachmentSupport = (doc.getObject("XZ_Plane"), [""])
sketch8.MapMode = "FlatFace"
sketch8.AttachmentOffset = App.Placement(App.Vector(0, 0, -10), App.Rotation())
add_polygon(sketch8, [(3.2, 37), (3.2, 21.5), (1.5, 21.5), (1.5, 37)])
sketch8.addConstraint([
    Sketcher.Constraint("Vertical", 0),
    Sketcher.Constraint("Horizontal", 1),
    Sketcher.Constraint("Vertical", 2),
    Sketcher.Constraint("Horizontal", 3),
    Sketcher.Constraint("DistanceX", 1, 2, 1, 1, Q("1.7 mm")),
    Sketcher.Constraint("DistanceY", 0, 2, 0, 1, Q("15.5 mm")),
    Sketcher.Constraint("DistanceY", -1, 1, 2, 2, Q("37 mm")),
    Sketcher.Constraint("DistanceX", -1, 1, 0, 2, Q("3.199999 mm")),
])
pocket7 = body.newObject("PartDesign::Pocket", "Pocket006")
pocket7.Profile = sketch8
pocket7.Length = 1.6
pocket7.Reversed = True

sketch9 = body.newObject("Sketcher::SketchObject", "Sketch008")
sketch9.AttachmentSupport = (doc.getObject("XZ_Plane"), [""])
sketch9.MapMode = "FlatFace"
sketch9.AttachmentOffset = App.Placement(App.Vector(0, 0, -10), App.Rotation())
add_polygon(sketch9, [(27.5, 37), (27.5, 21.5), (25.8, 21.5), (25.8, 37)])
sketch9.addConstraint([
    Sketcher.Constraint("Vertical", 0),
    Sketcher.Constraint("Horizontal", 1),
    Sketcher.Constraint("Vertical", 2),
    Sketcher.Constraint("Horizontal", 3),
    Sketcher.Constraint("DistanceX", 1, 2, 1, 1, Q("1.700001 mm")),
    Sketcher.Constraint("DistanceY", 0, 2, 0, 1, Q("15.5 mm")),
    Sketcher.Constraint("DistanceY", -1, 1, 2, 2, Q("37 mm")),
    Sketcher.Constraint("DistanceX", -1, 1, 0, 2, Q("27.5 mm")),
])
pocket8 = body.newObject("PartDesign::Pocket", "Pocket007")
pocket8.Profile = sketch9
pocket8.Length = 1.6
pocket8.Reversed = True

sketch10 = body.newObject("Sketcher::SketchObject", "Sketch009")
sketch10.AttachmentSupport = (doc.getObject("XZ_Plane"), [""])
sketch10.MapMode = "FlatFace"
sketch10.AttachmentOffset = App.Placement(App.Vector(0, 0, -2.8), App.Rotation())
add_polygon(sketch10, [(20, 40), (20, 17), (9, 17), (9, 40)])
sketch10.addConstraint([
    Sketcher.Constraint("Vertical", 0),
    Sketcher.Constraint("Horizontal", 1),
    Sketcher.Constraint("Vertical", 2),
    Sketcher.Constraint("Horizontal", 3),
    Sketcher.Constraint("DistanceX", 1, 2, 1, 1, Q("11.099999 mm")),
    Sketcher.Constraint("DistanceX", -1, 1, 0, 2, Q("20.049999 mm")),
    Sketcher.Constraint("DistanceY", -1, 1, 0, 2, Q("17.450001 mm")),
    Sketcher.Constraint("DistanceY", -1, 1, 2, 2, Q("39.549999 mm")),
])
pocket9 = body.newObject("PartDesign::Pocket", "Pocket008")
pocket9.Profile = sketch10
pocket9.Length = 1.2
pocket9.Reversed = True

sketch11 = body.newObject("Sketcher::SketchObject", "Sketch010")
sketch11.AttachmentSupport = (doc.getObject("YZ_Plane"), [""])
sketch11.MapMode = "FlatFace"
add_polygon(sketch11, [(10, 14), (0, 14), (0, 44), (10, 44)])
sketch11.addConstraint([
    Sketcher.Constraint("Horizontal", 0),
    Sketcher.Constraint("Vertical", 1),
    Sketcher.Constraint("Horizontal", 2),
    Sketcher.Constraint("Vertical", 3),
    Sketcher.Constraint("PointOnObject", 0, 2, -2),
    Sketcher.Constraint("DistanceX", 0, 2, 0, 1, Q("10 mm")),
    Sketcher.Constraint("DistanceY", 1, 1, 1, 2, Q("30 mm")),
    Sketcher.Constraint("DistanceY", -1, 1, 0, 2, Q("13.500001 mm")),
])
pad2 = body.newObject("PartDesign::Pad", "Pad001")
pad2.Profile = sketch11
pad2.Length = 12
pad2.Reversed = True

sketch12 = body.newObject("Sketcher::SketchObject", "Sketch011")
sketch12.AttachmentSupport = (doc.getObject("YZ_Plane"), [""])
sketch12.MapMode = "FlatFace"
sketch12.AttachmentOffset = App.Placement(App.Vector(0, 0, 28.999999), App.Rotation())
add_polygon(sketch12, [(10, 44), (0, 44), (0, 14), (10, 14)])
sketch12.addConstraint([
    Sketcher.Constraint("Horizontal", 0),
    Sketcher.Constraint("Vertical", 1),
    Sketcher.Constraint("Horizontal", 2),
    Sketcher.Constraint("Vertical", 3),
    Sketcher.Constraint("PointOnObject", 0, 2, -2),
    Sketcher.Constraint("DistanceX", 0, 2, 0, 1, Q("10 mm")),
    Sketcher.Constraint("DistanceY", 1, 2, 1, 1, Q("30 mm")),
    Sketcher.Constraint("DistanceY", -1, 1, 0, 2, Q("43.500001 mm")),
])
pad3 = body.newObject("PartDesign::Pad", "Pad002")
pad3.Profile = sketch12
pad3.Length = 12
doc.recompute()

fillet = body.newObject("PartDesign::Fillet", "Fillet")
fillet.Base = (pad3, edges_at(pad3, [
    (-12, 5, 13.5),
    (-12, 5, 43.5),
    (41, 5, 43.5),
    (41, 5, 13.5),
]))
fillet.Radius = 2

doc.recompute()
